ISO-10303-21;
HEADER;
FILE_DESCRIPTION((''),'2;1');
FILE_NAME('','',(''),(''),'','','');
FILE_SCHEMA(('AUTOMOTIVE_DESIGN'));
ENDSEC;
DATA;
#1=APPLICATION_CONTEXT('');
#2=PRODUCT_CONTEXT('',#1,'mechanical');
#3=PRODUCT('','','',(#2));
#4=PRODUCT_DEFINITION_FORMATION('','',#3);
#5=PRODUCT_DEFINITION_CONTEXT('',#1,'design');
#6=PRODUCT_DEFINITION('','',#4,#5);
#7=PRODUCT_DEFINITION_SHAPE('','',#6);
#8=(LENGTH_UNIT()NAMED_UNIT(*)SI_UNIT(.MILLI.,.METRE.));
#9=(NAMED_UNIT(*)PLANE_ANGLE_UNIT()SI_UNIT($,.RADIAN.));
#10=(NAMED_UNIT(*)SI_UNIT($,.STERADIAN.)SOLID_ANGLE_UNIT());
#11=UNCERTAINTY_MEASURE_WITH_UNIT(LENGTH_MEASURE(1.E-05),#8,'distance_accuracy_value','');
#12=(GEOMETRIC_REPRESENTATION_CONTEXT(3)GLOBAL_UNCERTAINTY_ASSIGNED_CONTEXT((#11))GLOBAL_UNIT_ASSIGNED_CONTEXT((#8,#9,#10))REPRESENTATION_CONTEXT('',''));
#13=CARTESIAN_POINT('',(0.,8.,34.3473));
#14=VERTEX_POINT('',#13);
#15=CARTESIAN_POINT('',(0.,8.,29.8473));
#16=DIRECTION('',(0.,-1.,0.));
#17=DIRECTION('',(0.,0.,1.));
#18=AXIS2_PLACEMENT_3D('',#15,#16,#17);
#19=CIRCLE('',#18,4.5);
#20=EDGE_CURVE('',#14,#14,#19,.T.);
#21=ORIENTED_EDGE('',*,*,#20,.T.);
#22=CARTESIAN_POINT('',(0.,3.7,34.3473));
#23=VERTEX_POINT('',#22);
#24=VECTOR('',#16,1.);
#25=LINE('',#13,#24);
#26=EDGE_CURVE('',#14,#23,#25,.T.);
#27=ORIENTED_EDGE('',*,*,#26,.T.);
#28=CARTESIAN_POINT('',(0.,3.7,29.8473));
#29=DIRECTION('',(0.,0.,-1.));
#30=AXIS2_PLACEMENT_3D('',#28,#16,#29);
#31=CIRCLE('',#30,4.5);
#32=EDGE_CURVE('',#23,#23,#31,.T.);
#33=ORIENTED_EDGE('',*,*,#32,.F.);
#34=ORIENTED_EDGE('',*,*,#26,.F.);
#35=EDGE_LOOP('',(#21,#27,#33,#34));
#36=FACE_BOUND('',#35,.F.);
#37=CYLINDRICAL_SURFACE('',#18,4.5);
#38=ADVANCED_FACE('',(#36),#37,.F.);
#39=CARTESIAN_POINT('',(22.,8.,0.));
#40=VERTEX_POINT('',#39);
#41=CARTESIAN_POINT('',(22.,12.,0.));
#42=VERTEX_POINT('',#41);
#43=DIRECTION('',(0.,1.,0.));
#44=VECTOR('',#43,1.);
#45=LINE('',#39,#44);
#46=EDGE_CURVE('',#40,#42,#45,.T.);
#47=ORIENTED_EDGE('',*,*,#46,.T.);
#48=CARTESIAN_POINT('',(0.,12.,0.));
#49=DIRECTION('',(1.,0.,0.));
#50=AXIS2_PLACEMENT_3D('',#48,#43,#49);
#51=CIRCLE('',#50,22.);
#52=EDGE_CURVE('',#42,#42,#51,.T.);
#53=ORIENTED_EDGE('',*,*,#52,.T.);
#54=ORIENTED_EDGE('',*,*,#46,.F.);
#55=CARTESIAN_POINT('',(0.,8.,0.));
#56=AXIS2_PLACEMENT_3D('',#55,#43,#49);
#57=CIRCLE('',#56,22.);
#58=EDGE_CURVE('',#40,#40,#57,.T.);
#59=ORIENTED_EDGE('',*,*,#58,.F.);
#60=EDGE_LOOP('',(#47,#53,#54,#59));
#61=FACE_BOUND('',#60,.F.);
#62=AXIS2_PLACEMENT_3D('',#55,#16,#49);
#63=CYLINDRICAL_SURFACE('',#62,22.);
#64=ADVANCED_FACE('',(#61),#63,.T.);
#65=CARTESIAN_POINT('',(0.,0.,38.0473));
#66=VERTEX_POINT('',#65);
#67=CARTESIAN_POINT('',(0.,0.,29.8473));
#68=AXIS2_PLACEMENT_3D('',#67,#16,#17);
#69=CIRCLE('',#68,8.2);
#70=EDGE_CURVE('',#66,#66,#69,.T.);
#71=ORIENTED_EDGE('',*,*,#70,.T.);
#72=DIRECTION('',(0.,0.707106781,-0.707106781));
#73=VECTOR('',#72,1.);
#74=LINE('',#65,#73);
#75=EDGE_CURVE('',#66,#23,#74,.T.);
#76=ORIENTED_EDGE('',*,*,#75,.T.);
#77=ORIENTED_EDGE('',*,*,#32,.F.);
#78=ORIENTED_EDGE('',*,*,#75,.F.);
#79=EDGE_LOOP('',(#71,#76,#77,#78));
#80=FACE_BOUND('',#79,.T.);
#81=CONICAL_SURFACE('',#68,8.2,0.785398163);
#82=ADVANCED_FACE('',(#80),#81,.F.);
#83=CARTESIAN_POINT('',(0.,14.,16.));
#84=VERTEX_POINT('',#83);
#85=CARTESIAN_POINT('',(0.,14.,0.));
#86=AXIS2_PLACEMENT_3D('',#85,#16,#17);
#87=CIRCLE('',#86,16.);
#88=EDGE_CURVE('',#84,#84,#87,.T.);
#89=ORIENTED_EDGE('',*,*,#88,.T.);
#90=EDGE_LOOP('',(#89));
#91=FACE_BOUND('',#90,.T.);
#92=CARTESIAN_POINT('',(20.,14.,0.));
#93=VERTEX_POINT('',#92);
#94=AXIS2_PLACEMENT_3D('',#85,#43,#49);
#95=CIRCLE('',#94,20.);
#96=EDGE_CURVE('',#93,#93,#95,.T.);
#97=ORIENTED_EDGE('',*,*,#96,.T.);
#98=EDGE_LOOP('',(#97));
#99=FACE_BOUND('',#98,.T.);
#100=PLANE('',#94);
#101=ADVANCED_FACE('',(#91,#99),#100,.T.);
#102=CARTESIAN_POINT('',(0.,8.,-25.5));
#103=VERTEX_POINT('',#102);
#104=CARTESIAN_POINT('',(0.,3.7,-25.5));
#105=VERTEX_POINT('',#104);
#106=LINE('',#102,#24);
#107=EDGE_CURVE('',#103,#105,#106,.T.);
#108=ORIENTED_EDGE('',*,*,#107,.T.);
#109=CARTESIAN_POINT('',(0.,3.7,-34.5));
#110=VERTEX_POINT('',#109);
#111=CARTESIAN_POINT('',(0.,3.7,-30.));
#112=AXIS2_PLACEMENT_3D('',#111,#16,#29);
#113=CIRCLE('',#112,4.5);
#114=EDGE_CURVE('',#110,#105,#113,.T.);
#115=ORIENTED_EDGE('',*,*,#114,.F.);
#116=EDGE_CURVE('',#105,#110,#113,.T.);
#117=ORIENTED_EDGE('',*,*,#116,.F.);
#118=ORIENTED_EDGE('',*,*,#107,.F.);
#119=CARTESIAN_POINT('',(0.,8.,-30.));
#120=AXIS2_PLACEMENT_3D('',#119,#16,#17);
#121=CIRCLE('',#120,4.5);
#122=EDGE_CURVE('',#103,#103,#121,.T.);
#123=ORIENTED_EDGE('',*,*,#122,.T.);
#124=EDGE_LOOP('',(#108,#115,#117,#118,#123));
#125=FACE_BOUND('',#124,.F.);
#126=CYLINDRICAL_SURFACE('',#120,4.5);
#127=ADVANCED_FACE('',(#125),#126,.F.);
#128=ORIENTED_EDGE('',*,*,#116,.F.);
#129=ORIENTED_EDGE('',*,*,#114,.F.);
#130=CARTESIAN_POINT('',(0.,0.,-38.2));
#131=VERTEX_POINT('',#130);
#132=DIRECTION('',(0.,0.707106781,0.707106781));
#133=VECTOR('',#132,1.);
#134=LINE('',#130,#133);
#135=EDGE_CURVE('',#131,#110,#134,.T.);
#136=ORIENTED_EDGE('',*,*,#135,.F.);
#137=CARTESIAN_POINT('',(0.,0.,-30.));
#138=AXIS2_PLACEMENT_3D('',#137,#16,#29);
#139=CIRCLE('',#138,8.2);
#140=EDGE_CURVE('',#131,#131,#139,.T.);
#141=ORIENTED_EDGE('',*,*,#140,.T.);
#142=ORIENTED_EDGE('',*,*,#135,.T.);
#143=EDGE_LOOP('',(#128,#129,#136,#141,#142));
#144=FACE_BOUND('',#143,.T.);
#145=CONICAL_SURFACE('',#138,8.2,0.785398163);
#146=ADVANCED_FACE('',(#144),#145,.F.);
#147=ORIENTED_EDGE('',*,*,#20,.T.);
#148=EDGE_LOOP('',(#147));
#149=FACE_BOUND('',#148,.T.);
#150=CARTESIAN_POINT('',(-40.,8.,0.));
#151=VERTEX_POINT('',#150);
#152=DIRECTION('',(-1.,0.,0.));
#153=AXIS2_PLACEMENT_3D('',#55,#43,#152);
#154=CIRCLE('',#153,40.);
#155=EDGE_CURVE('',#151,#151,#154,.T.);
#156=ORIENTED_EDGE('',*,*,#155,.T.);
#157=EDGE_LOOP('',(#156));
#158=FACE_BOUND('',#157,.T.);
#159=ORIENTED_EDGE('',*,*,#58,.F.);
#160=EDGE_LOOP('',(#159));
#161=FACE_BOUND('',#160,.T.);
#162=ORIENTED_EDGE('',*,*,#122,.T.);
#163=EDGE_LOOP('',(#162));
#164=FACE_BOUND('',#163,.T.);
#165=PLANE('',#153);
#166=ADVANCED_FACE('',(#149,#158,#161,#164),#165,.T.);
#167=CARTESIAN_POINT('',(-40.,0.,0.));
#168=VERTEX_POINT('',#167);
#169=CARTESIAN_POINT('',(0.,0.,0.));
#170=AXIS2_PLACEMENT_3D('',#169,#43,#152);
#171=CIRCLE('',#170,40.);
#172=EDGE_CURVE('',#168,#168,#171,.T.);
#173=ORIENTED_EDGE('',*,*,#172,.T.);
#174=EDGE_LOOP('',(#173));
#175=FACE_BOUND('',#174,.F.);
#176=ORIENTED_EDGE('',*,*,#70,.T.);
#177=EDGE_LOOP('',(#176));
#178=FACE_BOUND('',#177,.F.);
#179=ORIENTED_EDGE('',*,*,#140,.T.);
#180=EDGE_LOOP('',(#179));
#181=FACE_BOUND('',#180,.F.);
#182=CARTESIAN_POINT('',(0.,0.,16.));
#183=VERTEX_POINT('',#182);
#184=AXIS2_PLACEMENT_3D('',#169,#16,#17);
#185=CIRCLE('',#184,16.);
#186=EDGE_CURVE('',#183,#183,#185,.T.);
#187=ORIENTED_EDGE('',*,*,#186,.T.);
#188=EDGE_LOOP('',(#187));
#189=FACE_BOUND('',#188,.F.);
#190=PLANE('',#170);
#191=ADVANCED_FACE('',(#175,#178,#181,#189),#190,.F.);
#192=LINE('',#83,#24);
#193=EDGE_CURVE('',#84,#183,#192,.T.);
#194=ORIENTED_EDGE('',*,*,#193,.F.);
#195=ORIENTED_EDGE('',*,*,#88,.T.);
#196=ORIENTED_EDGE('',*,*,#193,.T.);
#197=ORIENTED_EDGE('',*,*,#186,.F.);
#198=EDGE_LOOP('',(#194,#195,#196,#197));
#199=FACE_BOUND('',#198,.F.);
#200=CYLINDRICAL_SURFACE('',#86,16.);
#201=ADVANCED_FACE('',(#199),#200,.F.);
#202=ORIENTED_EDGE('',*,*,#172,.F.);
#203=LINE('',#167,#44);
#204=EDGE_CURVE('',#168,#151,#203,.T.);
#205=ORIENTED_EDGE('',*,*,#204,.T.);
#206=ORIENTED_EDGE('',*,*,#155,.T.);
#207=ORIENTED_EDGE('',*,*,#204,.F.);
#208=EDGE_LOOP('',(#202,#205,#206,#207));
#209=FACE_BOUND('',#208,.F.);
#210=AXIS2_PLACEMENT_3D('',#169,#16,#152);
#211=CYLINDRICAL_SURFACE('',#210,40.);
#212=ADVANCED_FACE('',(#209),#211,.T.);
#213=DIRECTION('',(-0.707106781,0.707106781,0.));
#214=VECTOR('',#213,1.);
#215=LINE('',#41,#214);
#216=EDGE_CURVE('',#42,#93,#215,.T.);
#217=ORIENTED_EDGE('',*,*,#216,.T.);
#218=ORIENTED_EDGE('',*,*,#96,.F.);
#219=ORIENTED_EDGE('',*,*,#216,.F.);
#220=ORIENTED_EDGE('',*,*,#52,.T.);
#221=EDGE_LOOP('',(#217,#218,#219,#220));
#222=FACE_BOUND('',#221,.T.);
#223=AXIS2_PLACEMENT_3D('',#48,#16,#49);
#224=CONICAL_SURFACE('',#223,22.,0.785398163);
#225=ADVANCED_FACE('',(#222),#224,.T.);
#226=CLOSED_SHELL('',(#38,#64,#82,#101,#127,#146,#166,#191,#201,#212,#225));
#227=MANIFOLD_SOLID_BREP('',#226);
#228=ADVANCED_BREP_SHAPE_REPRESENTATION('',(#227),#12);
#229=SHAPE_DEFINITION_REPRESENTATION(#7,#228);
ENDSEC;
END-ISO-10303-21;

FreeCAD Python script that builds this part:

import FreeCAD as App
import Part
import Sketcher
from FreeCAD import Vector


def edges_at(feature, points):
    """Names of the edges that pass closest to the given points."""
    edges = feature.Shape.Edges
    near = lambda p: min(range(len(edges)), key=lambda i: edges[i].distToShape(Part.Vertex(*p))[0])
    return sorted({f"Edge{near(p) + 1}" for p in points})

doc = App.newDocument("Part")
body = doc.addObject("PartDesign::Body", "Body")

# Sketch on XZ plane
sketch1 = body.newObject("Sketcher::SketchObject", "Sketch")
sketch1.AttachmentSupport = (doc.getObject("XZ_Plane"), [""])
sketch1.MapMode = "FlatFace"
sketch1.addGeometry(Part.Circle(Vector(0, 0, 0), Vector(0, 0, 1), 40), False)
sketch1.addConstraint([
    Sketcher.Constraint("Coincident", 0, 3, -1, 1),
    Sketcher.Constraint("Diameter", 0, 80.0),
])
pad1 = body.newObject("PartDesign::Pad", "Pad")
pad1.Profile = sketch1
pad1.Length = 8
pad1.Reversed = True

# Sketch on YZ plane
sketch2 = body.newObject("Sketcher::SketchObject", "Sketch001")
sketch2.AttachmentSupport = (doc.getObject("YZ_Plane"), [""])
sketch2.MapMode = "FlatFace"
sketch2.addGeometry([
    Part.LineSegment(Vector(8.2, 29.8473, 0), Vector(0, 38.0473, 0)),
    Part.LineSegment(Vector(0, 38.0473, 0), Vector(0, 29.8473, 0)),
    Part.LineSegment(Vector(0, 29.8473, 0), Vector(8.2, 29.8473, 0)),
], False)
sketch2.addGeometry(Part.LineSegment(Vector(8.2, 29.8473, 0), Vector(0, 29.8473, 0)), True)  # axis
sketch2.addConstraint([
    Sketcher.Constraint("Coincident", 0, 2, 1, 1),
    Sketcher.Constraint("Coincident", 1, 2, 2, 1),
    Sketcher.Constraint("Coincident", 2, 2, 0, 1),
    Sketcher.Constraint("Vertical", 1),
    Sketcher.Constraint("Horizontal", 2),
    Sketcher.Constraint("Horizontal", 3),
    Sketcher.Constraint("Coincident", 3, 1, 2, 2),
    Sketcher.Constraint("PointOnObject", 0, 2, -2),
    Sketcher.Constraint("PointOnObject", 3, 2, -2),
    Sketcher.Constraint("Equal", 3, 1),
    Sketcher.Constraint("DistanceX", 2, 1, 2, 2, 8.2),
    Sketcher.Constraint("DistanceY", -1, 1, 0, 2, 38.0473),
])
groove = body.newObject("PartDesign::Groove", "Groove")
groove.Profile = sketch2
groove.ReferenceAxis = (sketch2, ["Axis0"])
groove.Angle = 360

# Sketch on YZ plane
sketch3 = body.newObject("Sketcher::SketchObject", "Sketch002")
sketch3.AttachmentSupport = (doc.getObject("YZ_Plane"), [""])
sketch3.MapMode = "FlatFace"
sketch3.addGeometry([
    Part.LineSegment(Vector(8.2, -30, 0), Vector(0, -30, 0)),
    Part.LineSegment(Vector(0, -30, 0), Vector(0, -38.2, 0)),
    Part.LineSegment(Vector(0, -38.2, 0), Vector(8.2, -30, 0)),
], False)
sketch3.addGeometry(Part.LineSegment(Vector(8.2, -30, 0), Vector(0, -30, 0)), True)  # axis
sketch3.addConstraint([
    Sketcher.Constraint("Coincident", 0, 2, 1, 1),
    Sketcher.Constraint("Coincident", 1, 2, 2, 1),
    Sketcher.Constraint("Coincident", 2, 2, 0, 1),
    Sketcher.Constraint("Horizontal", 0),
    Sketcher.Constraint("Vertical", 1),
    Sketcher.Constraint("Horizontal", 3),
    Sketcher.Constraint("Coincident", 3, 1, 2, 2),
    Sketcher.Constraint("PointOnObject", 0, 2, -2),
    Sketcher.Constraint("PointOnObject", 3, 2, -2),
    Sketcher.Constraint("Equal", 3, 1),
    Sketcher.Constraint("DistanceX", 0, 2, 0, 1, 8.2),
    Sketcher.Constraint("DistanceY", 0, 2, -1, 1, 30.0),
])
groove2 = body.newObject("PartDesign::Groove", "Groove001")
groove2.Profile = sketch3
groove2.ReferenceAxis = (sketch3, ["Axis0"])
groove2.Angle = 360

# Sketch on XZ plane
sketch4 = body.newObject("Sketcher::SketchObject", "Sketch003")
sketch4.AttachmentSupport = (doc.getObject("XZ_Plane"), [""])
sketch4.MapMode = "FlatFace"
sketch4.AttachmentOffset = App.Placement(Vector(0, 0, -8), App.Rotation())
sketch4.addGeometry([
    Part.Circle(Vector(0, -30, 0), Vector(0, 0, 1), 4.5),
    Part.Circle(Vector(0, 29.8473, 0), Vector(0, 0, 1), 4.5),
], False)
sketch4.addConstraint([
    Sketcher.Constraint("Equal", 0, 1),
    Sketcher.Constraint("PointOnObject", 0, 3, -2),
    Sketcher.Constraint("PointOnObject", 1, 3, -2),
    Sketcher.Constraint("Diameter", 0, 9.0),
    Sketcher.Constraint("DistanceY", 0, 3, -1, 1, 30.0),
    Sketcher.Constraint("DistanceY", -1, 1, 1, 3, 29.8473),
])
doc.recompute()
hole = body.newObject("PartDesign::Hole", "Hole")
hole.Profile = sketch4
hole.ThreadType = "None"
hole.Diameter = 9
hole.DepthType = "ThroughAll"
hole.Reversed = True

# Sketch on XZ plane
sketch5 = body.newObject("Sketcher::SketchObject", "Sketch004")
sketch5.AttachmentSupport = (doc.getObject("XZ_Plane"), [""])
sketch5.MapMode = "FlatFace"
sketch5.AttachmentOffset = App.Placement(Vector(0, 0, -8), App.Rotation())
sketch5.addGeometry(Part.Circle(Vector(0, 0, 0), Vector(0, 0, 1), 22), False)
sketch5.addConstraint([
    Sketcher.Constraint("Coincident", 0, 3, -1, 1),
    Sketcher.Constraint("Diameter", 0, 44.0),
])
pad2 = body.newObject("PartDesign::Pad", "Pad001")
pad2.Profile = sketch5
pad2.Length = 6
pad2.Reversed = True

# Sketch on XZ plane
sketch6 = body.newObject("Sketcher::SketchObject", "Sketch005")
sketch6.AttachmentSupport = (doc.getObject("XZ_Plane"), [""])
sketch6.MapMode = "FlatFace"
sketch6.AttachmentOffset = App.Placement(Vector(0, 0, -14), App.Rotation())
sketch6.addGeometry(Part.Circle(Vector(0, 0, 0), Vector(0, 0, 1), 16), False)
sketch6.addConstraint([
    Sketcher.Constraint("Coincident", 0, 3, -1, 1),
    Sketcher.Constraint("Diameter", 0, 32.0),
])
doc.recompute()
hole2 = body.newObject("PartDesign::Hole", "Hole001")
hole2.Profile = sketch6
hole2.ThreadType = "None"
hole2.Diameter = 32
hole2.DepthType = "ThroughAll"
hole2.Reversed = True
doc.recompute()

chamfer = body.newObject("PartDesign::Chamfer", "Chamfer")
chamfer.Base = (hole2, edges_at(hole2, [(-22, 14, 0)]))
chamfer.Size = 2

doc.recompute()
